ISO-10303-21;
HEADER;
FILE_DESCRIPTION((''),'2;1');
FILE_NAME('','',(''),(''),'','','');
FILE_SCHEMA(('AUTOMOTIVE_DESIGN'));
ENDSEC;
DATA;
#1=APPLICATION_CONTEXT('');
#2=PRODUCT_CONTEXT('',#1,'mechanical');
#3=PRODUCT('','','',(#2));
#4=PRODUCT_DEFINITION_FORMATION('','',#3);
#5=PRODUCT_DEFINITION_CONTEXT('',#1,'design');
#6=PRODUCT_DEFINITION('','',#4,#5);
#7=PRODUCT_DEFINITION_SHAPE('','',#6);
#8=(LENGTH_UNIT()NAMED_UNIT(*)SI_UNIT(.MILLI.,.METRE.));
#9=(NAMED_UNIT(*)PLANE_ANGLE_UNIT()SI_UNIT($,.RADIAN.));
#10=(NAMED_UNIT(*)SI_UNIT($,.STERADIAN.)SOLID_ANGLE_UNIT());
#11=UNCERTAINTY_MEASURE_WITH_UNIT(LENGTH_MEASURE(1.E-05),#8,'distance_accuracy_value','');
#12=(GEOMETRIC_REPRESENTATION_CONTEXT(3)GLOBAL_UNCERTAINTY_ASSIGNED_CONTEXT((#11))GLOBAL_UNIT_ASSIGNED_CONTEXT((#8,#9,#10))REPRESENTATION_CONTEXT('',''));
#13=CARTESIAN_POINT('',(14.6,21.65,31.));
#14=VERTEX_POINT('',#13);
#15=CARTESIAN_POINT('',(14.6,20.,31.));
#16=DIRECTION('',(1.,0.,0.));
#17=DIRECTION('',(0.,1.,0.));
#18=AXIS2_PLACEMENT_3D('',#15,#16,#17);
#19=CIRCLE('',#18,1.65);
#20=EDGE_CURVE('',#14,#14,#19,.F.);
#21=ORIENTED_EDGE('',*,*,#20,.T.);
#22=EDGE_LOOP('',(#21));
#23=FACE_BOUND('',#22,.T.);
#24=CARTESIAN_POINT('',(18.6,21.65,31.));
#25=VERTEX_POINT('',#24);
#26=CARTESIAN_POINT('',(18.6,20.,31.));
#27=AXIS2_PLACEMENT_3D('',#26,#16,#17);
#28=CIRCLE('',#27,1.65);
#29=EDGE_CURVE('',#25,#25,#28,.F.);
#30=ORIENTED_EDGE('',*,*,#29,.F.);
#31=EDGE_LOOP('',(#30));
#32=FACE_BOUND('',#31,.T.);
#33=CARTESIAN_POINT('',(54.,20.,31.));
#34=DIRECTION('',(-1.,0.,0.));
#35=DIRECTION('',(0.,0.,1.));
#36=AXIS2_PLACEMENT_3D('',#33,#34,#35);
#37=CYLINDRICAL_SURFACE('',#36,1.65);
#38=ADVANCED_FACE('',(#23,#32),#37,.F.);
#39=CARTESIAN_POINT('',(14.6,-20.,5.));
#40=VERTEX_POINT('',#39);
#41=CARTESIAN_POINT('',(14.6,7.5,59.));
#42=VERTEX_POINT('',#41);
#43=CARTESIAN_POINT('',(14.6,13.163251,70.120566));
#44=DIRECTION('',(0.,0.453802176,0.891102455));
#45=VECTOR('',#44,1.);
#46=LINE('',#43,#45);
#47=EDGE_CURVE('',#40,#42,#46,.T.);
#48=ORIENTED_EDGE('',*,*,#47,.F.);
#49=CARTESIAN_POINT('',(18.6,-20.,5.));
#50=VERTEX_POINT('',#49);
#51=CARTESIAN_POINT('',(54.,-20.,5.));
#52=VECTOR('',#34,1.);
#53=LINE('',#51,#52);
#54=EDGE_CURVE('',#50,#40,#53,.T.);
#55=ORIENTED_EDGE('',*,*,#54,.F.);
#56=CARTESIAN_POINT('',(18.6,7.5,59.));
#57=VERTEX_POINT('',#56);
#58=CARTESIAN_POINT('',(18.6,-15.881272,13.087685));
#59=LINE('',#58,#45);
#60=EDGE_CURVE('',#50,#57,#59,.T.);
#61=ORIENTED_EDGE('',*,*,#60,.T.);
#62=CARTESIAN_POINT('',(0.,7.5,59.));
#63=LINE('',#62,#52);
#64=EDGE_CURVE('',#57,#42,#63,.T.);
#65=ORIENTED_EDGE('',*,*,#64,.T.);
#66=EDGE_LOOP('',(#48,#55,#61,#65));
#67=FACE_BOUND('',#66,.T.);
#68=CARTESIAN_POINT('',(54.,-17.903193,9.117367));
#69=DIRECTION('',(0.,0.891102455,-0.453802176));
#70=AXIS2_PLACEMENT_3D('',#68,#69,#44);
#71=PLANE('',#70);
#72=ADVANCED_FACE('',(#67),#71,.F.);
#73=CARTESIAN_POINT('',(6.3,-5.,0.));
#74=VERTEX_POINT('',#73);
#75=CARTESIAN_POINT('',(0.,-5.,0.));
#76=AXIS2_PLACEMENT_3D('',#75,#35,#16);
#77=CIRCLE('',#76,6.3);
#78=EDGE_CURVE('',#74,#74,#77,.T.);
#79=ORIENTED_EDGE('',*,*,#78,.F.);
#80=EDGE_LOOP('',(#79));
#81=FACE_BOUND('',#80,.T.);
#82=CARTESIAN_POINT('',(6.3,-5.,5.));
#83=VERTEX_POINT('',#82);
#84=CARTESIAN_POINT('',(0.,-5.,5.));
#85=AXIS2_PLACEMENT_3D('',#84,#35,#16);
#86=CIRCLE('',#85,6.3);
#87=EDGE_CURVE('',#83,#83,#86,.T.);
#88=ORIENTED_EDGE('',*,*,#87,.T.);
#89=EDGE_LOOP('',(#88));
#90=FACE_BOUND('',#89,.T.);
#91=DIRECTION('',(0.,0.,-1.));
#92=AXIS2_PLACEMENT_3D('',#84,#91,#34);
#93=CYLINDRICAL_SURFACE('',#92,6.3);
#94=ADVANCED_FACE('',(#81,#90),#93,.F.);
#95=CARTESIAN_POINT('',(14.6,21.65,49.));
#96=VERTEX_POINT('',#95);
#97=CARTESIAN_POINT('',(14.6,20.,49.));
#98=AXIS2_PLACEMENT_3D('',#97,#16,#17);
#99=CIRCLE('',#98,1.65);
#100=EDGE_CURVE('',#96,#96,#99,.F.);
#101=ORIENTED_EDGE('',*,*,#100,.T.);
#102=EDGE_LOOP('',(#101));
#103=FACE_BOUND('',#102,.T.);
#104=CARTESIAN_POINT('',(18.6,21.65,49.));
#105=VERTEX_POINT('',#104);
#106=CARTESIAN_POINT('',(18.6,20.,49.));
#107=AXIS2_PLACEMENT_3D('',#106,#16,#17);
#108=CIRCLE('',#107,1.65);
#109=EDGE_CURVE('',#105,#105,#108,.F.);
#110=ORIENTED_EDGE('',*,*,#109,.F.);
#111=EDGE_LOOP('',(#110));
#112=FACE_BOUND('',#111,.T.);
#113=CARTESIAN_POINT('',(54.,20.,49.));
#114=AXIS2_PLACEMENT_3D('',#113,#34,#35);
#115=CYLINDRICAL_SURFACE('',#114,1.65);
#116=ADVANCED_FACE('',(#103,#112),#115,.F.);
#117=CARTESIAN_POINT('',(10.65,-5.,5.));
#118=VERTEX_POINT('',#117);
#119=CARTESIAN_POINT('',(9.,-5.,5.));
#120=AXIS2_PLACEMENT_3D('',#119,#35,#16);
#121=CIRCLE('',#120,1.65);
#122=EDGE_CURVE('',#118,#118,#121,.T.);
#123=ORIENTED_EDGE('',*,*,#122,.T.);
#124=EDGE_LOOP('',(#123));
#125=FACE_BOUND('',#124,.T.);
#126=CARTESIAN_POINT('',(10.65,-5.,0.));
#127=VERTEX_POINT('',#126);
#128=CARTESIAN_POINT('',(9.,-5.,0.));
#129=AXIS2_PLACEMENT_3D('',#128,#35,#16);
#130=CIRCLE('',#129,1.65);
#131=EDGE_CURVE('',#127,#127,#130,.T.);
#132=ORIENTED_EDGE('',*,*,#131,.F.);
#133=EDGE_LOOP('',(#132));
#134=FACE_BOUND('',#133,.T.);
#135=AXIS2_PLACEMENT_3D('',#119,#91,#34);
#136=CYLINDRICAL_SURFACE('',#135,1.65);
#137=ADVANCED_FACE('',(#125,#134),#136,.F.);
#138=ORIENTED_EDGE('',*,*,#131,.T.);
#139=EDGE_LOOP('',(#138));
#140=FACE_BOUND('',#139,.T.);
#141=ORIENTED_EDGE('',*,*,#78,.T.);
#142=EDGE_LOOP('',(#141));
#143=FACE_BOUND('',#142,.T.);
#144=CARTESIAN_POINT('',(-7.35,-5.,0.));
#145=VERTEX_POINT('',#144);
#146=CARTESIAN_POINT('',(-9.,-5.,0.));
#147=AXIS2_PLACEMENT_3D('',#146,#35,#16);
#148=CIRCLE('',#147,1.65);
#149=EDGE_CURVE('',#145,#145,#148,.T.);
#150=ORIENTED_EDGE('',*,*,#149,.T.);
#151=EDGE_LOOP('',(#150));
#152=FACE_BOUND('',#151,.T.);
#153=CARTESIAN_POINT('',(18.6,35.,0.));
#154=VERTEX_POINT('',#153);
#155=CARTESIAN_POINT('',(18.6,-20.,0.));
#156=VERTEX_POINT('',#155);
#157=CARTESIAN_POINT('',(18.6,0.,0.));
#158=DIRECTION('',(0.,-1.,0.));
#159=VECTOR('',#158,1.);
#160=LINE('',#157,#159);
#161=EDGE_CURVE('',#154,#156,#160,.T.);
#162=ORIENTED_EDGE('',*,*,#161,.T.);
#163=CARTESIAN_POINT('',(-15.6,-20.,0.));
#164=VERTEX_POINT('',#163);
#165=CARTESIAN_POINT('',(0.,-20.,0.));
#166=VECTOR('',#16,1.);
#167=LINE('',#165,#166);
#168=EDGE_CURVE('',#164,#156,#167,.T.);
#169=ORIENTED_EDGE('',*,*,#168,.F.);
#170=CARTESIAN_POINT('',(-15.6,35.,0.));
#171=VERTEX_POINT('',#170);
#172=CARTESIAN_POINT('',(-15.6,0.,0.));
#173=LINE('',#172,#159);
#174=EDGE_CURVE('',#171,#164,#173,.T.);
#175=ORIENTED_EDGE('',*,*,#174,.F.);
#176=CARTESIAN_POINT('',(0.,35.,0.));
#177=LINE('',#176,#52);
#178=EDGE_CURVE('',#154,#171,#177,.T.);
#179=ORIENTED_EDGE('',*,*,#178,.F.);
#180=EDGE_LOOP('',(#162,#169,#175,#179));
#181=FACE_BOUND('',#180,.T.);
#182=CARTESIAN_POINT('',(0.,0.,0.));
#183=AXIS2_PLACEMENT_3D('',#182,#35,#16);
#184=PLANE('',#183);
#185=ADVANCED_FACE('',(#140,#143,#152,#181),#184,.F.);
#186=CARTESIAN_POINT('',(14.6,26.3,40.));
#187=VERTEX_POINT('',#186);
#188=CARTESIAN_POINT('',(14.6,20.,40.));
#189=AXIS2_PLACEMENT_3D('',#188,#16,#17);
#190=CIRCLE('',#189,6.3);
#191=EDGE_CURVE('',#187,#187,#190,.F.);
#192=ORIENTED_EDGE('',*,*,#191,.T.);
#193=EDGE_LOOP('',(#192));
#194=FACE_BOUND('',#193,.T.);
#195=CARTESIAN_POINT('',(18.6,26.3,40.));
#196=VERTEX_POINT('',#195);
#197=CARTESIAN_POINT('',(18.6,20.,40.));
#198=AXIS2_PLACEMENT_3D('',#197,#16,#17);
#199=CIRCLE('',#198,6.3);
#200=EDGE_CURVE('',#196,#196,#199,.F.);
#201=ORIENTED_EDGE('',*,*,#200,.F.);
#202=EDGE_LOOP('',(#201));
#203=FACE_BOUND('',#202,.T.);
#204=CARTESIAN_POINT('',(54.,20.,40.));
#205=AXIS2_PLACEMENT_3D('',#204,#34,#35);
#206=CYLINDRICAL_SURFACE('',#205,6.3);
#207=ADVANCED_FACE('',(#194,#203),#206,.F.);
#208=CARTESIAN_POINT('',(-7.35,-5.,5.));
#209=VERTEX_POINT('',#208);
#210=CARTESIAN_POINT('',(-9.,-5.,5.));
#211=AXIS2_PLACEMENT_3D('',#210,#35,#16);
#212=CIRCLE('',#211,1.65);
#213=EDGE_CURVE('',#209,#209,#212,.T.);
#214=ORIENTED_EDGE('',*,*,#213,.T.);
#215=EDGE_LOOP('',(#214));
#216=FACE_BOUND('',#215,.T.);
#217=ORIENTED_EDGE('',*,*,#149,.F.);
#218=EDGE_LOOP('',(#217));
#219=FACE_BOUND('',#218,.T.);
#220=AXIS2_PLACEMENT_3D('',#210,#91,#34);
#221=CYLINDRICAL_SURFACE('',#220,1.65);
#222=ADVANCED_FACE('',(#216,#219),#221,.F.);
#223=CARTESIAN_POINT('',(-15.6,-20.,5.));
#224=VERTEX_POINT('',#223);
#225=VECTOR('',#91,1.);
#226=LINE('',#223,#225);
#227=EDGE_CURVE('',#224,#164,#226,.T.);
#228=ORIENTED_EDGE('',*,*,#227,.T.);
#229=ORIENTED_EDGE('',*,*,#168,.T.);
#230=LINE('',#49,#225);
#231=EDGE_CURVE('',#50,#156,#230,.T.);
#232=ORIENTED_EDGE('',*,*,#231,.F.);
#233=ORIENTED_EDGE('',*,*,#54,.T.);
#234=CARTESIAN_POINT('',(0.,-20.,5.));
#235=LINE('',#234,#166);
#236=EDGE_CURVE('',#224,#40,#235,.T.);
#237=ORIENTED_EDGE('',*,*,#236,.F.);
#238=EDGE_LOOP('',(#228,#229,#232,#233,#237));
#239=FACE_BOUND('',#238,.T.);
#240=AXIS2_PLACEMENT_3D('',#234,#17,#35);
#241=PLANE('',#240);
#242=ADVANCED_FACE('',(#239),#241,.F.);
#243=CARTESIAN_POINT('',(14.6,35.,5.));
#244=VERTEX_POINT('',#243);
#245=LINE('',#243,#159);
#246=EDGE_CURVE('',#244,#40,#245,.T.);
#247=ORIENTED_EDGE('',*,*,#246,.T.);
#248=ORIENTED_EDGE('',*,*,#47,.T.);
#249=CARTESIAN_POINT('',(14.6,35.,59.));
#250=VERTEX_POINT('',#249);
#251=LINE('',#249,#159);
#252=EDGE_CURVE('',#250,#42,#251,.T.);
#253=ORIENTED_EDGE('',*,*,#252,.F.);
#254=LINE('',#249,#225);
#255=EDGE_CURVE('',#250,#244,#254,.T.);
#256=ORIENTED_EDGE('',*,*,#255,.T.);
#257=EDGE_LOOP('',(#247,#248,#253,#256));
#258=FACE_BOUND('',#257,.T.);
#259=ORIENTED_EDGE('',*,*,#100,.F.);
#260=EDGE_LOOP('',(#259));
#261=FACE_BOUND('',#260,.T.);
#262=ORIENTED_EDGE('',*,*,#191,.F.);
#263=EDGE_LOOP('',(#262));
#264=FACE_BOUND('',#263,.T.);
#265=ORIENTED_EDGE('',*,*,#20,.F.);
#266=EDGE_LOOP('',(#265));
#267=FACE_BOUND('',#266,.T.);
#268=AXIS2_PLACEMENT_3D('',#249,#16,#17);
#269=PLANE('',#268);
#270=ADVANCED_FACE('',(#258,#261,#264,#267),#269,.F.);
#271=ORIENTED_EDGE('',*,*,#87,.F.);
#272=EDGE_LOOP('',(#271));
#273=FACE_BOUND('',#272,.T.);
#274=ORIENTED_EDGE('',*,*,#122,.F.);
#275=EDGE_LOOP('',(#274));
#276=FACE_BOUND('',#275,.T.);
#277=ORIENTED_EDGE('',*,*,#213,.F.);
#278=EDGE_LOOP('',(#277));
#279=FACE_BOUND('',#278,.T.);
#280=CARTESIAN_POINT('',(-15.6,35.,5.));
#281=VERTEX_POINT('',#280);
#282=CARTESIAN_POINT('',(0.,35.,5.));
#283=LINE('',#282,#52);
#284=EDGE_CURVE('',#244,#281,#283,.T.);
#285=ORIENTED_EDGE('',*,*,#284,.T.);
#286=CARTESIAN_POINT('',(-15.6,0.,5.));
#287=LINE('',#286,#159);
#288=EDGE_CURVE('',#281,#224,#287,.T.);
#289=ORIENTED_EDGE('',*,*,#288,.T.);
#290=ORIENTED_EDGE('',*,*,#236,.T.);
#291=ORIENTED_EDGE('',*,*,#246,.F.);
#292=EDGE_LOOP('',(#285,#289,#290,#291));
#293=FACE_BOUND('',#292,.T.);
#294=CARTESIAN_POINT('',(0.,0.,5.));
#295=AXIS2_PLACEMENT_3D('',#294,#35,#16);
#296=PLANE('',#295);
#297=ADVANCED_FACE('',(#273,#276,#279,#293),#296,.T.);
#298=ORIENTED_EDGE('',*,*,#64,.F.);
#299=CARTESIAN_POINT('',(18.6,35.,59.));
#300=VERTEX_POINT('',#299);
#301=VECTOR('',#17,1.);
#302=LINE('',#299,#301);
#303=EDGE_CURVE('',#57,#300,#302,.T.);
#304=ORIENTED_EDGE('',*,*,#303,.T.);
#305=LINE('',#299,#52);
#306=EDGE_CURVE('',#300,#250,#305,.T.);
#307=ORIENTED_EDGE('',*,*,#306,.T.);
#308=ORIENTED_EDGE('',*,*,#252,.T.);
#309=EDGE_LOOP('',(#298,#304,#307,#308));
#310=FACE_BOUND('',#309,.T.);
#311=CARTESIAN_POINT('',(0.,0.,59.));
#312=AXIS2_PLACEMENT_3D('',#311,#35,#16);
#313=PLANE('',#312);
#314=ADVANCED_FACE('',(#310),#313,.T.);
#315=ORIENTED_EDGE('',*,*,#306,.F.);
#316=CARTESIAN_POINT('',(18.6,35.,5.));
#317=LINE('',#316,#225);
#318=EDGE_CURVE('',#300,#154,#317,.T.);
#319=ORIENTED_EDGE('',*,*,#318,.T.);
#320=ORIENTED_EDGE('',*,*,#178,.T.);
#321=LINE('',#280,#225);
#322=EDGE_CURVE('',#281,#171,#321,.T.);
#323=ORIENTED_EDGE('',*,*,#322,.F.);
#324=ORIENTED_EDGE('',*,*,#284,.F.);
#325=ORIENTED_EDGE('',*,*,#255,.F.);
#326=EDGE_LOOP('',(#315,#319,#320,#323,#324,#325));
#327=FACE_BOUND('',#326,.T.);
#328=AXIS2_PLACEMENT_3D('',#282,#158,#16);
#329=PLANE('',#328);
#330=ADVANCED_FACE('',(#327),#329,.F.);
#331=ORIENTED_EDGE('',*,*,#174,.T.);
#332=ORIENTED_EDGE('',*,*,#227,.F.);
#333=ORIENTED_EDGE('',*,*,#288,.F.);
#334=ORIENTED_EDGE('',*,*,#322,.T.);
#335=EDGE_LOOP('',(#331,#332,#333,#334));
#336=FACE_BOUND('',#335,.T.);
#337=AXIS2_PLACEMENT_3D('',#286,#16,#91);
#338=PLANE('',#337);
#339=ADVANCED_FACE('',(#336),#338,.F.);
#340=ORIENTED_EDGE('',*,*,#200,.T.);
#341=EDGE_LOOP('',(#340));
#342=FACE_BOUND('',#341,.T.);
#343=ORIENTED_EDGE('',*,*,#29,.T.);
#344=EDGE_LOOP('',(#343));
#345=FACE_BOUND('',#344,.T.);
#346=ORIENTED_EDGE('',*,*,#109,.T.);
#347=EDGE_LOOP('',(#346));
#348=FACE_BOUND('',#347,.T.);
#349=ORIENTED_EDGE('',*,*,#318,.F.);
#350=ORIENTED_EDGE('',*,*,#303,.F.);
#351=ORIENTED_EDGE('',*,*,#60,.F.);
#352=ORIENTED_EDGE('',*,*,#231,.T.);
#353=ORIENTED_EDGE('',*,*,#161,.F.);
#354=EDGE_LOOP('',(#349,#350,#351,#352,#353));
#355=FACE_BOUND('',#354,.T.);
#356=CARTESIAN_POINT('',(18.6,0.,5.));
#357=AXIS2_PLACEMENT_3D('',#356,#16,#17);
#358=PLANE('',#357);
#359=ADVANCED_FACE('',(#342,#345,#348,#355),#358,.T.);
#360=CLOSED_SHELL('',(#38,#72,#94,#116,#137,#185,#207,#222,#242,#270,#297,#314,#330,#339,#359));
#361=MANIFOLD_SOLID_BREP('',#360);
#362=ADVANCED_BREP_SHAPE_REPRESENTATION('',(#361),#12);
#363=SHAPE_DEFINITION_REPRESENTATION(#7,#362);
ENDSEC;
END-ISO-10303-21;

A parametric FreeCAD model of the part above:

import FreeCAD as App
import Part
import Sketcher
Q = App.Units.Quantity

doc = App.newDocument("Part")
body = doc.addObject("PartDesign::Body", "Body")

sketch1 = body.newObject("Sketcher::SketchObject", "Sketch")
sketch1.AttachmentSupport = (doc.getObject("XY_Plane"), [""])
sketch1.MapMode = "FlatFace"
sketch1.addGeometry(Part.LineSegment(App.Vector(-15.6, 35, 0), App.Vector(-15.6, -20, 0)), False)
sketch1.addGeometry(Part.LineSegment(App.Vector(-15.6, -20, 0), App.Vector(18.6, -20, 0)), False)
sketch1.addGeometry(Part.LineSegment(App.Vector(18.6, -20, 0), App.Vector(18.6, 35, 0)), False)
sketch1.addGeometry(Part.LineSegment(App.Vector(18.6, 35, 0), App.Vector(-15.6, 35, 0)), False)
sketch1.addGeometry(Part.Circle(App.Vector(-9, -5, 0), App.Vector(0, 0, 1), 1.6), False)
sketch1.addGeometry(Part.Circle(App.Vector(0, -5, 0), App.Vector(0, 0, 1), 6.3), False)
sketch1.addGeometry(Part.Circle(App.Vector(9, -5, 0), App.Vector(0, 0, 1), 1.6), False)
sketch1.addConstraint(Sketcher.Constraint("Coincident", 0, 2, 1, 1))
sketch1.addConstraint(Sketcher.Constraint("Coincident", 1, 2, 2, 1))
sketch1.addConstraint(Sketcher.Constraint("Coincident", 2, 2, 3, 1))
sketch1.addConstraint(Sketcher.Constraint("Coincident", 3, 2, 0, 1))
sketch1.addConstraint(Sketcher.Constraint("Vertical", 0))
sketch1.addConstraint(Sketcher.Constraint("Horizontal", 1))
sketch1.addConstraint(Sketcher.Constraint("Vertical", 2))
sketch1.addConstraint(Sketcher.Constraint("Horizontal", 3))
sketch1.addConstraint(Sketcher.Constraint("Equal", 4, 6))
sketch1.addConstraint(Sketcher.Constraint("Symmetric", 4, 3, 6, 3, -2))
sketch1.addConstraint(Sketcher.Constraint("PointOnObject", 5, 3, -2))
sketch1.addConstraint(Sketcher.Constraint("Horizontal", 4, 3, 5, 3))
sketch1.addConstraint(Sketcher.Constraint("Diameter", 4, Q("3.3 mm")))
sketch1.addConstraint(Sketcher.Constraint("Diameter", 5, Q("12.6 mm")))
sketch1.addConstraint(Sketcher.Constraint("DistanceY", 0, 2, 0, 1, Q("55 mm")))
sketch1.addConstraint(Sketcher.Constraint("DistanceX", 1, 1, 1, 2, Q("34.2 mm")))
sketch1.addConstraint(Sketcher.Constraint("DistanceX", 4, 3, -1, 1, Q("9 mm")))
sketch1.addConstraint(Sketcher.Constraint("DistanceY", 4, 3, -1, 1, Q("5 mm")))
sketch1.addConstraint(Sketcher.Constraint("DistanceY", 0, 2, -1, 1, Q("20 mm")))
sketch1.addConstraint(Sketcher.Constraint("DistanceX", 0, 2, -1, 1, Q("15.6 mm")))
pad1 = body.newObject("PartDesign::Pad", "Pad")
pad1.Profile = sketch1
pad1.Length = 5

sketch2 = body.newObject("Sketcher::SketchObject", "Sketch001")
sketch2.AttachmentSupport = (doc.getObject("XY_Plane"), [""])
sketch2.MapMode = "FlatFace"
sketch2.AttachmentOffset = App.Placement(App.Vector(0, 0, 5), App.Rotation())
sketch2.addGeometry(Part.LineSegment(App.Vector(14.6, 35, 0), App.Vector(14.6, -20, 0)), False)
sketch2.addGeometry(Part.LineSegment(App.Vector(14.6, -20, 0), App.Vector(18.6, -20, 0)), False)
sketch2.addGeometry(Part.LineSegment(App.Vector(18.6, -20, 0), App.Vector(18.6, 35, 0)), False)
sketch2.addGeometry(Part.LineSegment(App.Vector(18.6, 35, 0), App.Vector(14.6, 35, 0)), False)
sketch2.addConstraint(Sketcher.Constraint("Coincident", 0, 2, 1, 1))
sketch2.addConstraint(Sketcher.Constraint("Coincident", 1, 2, 2, 1))
sketch2.addConstraint(Sketcher.Constraint("Coincident", 2, 2, 3, 1))
sketch2.addConstraint(Sketcher.Constraint("Coincident", 3, 2, 0, 1))
sketch2.addConstraint(Sketcher.Constraint("Vertical", 0))
sketch2.addConstraint(Sketcher.Constraint("Horizontal", 1))
sketch2.addConstraint(Sketcher.Constraint("Vertical", 2))
sketch2.addConstraint(Sketcher.Constraint("Horizontal", 3))
sketch2.addConstraint(Sketcher.Constraint("DistanceX", 1, 1, 1, 2, Q("4 mm")))
sketch2.addConstraint(Sketcher.Constraint("DistanceY", 0, 2, 0, 1, Q("55 mm")))
sketch2.addConstraint(Sketcher.Constraint("DistanceY", 0, 2, -1, 1, Q("20 mm")))
sketch2.addConstraint(Sketcher.Constraint("DistanceX", -1, 1, 0, 2, Q("14.6 mm")))
pad2 = body.newObject("PartDesign::Pad", "Pad001")
pad2.Profile = sketch2
pad2.Length = 54

sketch3 = body.newObject("Sketcher::SketchObject", "Sketch002")
sketch3.AttachmentSupport = (doc.getObject("YZ_Plane"), [""])
sketch3.MapMode = "FlatFace"
sketch3.addGeometry(Part.LineSegment(App.Vector(7.5, 59, 0), App.Vector(-20, 59, 0)), False)
sketch3.addGeometry(Part.LineSegment(App.Vector(-20, 59, 0), App.Vector(-20, 5, 0)), False)
sketch3.addGeometry(Part.LineSegment(App.Vector(-20, 5, 0), App.Vector(7.5, 59, 0)), False)
sketch3.addGeometry(Part.Circle(App.Vector(20, 31, 0), App.Vector(0, 0, 1), 1.6), False)
sketch3.addGeometry(Part.Circle(App.Vector(20, 40, 0), App.Vector(0, 0, 1), 6.3), False)
sketch3.addGeometry(Part.Circle(App.Vector(20, 49, 0), App.Vector(0, 0, 1), 1.6), False)
sketch3.addConstraint(Sketcher.Constraint("Coincident", 0, 2, 1, 1))
sketch3.addConstraint(Sketcher.Constraint("Coincident", 1, 2, 2, 1))
sketch3.addConstraint(Sketcher.Constraint("Coincident", 2, 2, 0, 1))
sketch3.addConstraint(Sketcher.Constraint("Horizontal", 0))
sketch3.addConstraint(Sketcher.Constraint("Vertical", 1))
sketch3.addConstraint(Sketcher.Constraint("Equal", 3, 5))
sketch3.addConstraint(Sketcher.Constraint("Vertical", 3, 3, 4, 3))
sketch3.addConstraint(Sketcher.Constraint("Vertical", 4, 3, 5, 3))
sketch3.addConstraint(Sketcher.Constraint("Diameter", 3, Q("3.3 mm")))
sketch3.addConstraint(Sketcher.Constraint("Diameter", 4, Q("12.6 mm")))
sketch3.addConstraint(Sketcher.Constraint("DistanceY", 1, 2, 1, 1, Q("54 mm")))
sketch3.addConstraint(Sketcher.Constraint("DistanceX", 0, 2, 0, 1, Q("27.5 mm")))
sketch3.addConstraint(Sketcher.Constraint("DistanceX", -1, 1, 3, 3, Q("20 mm")))
sketch3.addConstraint(Sketcher.Constraint("DistanceY", -1, 1, 3, 3, Q("31 mm")))
sketch3.addConstraint(Sketcher.Constraint("DistanceY", -1, 1, 4, 3, Q("40 mm")))
sketch3.addConstraint(Sketcher.Constraint("DistanceY", -1, 1, 5, 3, Q("49 mm")))
sketch3.addConstraint(Sketcher.Constraint("DistanceX", 0, 2, -1, 1, Q("20 mm")))
sketch3.addConstraint(Sketcher.Constraint("DistanceY", -1, 1, 0, 2, Q("59 mm")))
pocket1 = body.newObject("PartDesign::Pocket", "Pocket")
pocket1.Profile = sketch3
pocket1.Length = 54
pocket1.Reversed = True

doc.recompute()
